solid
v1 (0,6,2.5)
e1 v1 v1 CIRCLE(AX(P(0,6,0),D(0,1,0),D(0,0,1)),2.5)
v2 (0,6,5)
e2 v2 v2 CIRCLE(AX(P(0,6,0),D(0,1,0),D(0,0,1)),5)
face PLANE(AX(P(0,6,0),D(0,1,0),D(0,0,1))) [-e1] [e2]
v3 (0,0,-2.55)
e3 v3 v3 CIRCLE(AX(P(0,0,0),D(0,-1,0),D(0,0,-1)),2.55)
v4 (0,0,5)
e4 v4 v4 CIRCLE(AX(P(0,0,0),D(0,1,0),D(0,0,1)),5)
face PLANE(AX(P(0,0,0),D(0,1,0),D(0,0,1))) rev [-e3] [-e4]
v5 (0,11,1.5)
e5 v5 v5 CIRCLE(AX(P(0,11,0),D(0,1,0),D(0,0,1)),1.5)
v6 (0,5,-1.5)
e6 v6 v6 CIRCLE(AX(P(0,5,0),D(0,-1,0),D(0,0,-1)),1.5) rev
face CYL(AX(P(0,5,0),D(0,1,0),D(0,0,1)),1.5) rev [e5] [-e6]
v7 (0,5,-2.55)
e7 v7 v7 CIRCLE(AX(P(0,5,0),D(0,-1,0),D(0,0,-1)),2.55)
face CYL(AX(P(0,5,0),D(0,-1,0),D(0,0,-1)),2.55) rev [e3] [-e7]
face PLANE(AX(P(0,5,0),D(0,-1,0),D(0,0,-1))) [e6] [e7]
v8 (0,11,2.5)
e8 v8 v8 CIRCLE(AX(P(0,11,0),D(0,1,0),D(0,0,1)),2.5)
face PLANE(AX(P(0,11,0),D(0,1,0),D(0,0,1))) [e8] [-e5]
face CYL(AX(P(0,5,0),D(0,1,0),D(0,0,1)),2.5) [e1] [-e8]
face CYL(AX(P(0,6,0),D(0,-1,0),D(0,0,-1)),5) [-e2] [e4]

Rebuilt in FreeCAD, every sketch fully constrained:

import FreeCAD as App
import Part
import Sketcher

V = App.Vector
Q = App.Units.Quantity

doc = App.newDocument("Part")
body = doc.addObject("PartDesign::Body", "Body")

# Sketch on XZ plane
sketch1 = doc.addObject("Sketcher::SketchObject", "Sketch")
body.addObject(sketch1)
sketch1.AttachmentSupport = (doc.XZ_Plane, [""])
sketch1.MapMode = "FlatFace"
sketch1.addGeometry(Part.Circle(V(0, 0, 0), V(0, 0, 1), 5), False)
sketch1.addConstraint(Sketcher.Constraint("Coincident", 0, 3, -1, 1))
sketch1.addConstraint(Sketcher.Constraint("Diameter", 0, Q("10 mm")))
pad1 = doc.addObject("PartDesign::Pad", "Pad")
body.addObject(pad1)
pad1.Profile = sketch1
pad1.Length = 6
pad1.Reversed = True

# Sketch on XZ plane
sketch2 = doc.addObject("Sketcher::SketchObject", "Sketch001")
body.addObject(sketch2)
sketch2.AttachmentSupport = (doc.XZ_Plane, [""])
sketch2.MapMode = "FlatFace"
sketch2.AttachmentOffset = App.Placement(V(0, 0, -6), App.Rotation())
sketch2.addGeometry(Part.Circle(V(0, 0, 0), V(0, 0, 1), 2.5), False)
sketch2.addConstraint(Sketcher.Constraint("Coincident", 0, 3, -1, 1))
sketch2.addConstraint(Sketcher.Constraint("Diameter", 0, Q("5 mm")))
pad2 = doc.addObject("PartDesign::Pad", "Pad001")
body.addObject(pad2)
pad2.Profile = sketch2
pad2.Type = "TwoLengths"
pad2.Length = 5
pad2.Length2 = 1
pad2.Reversed = True

# Sketch on XZ plane
sketch3 = doc.addObject("Sketcher::SketchObject", "Sketch002")
body.addObject(sketch3)
sketch3.AttachmentSupport = (doc.XZ_Plane, [""])
sketch3.MapMode = "FlatFace"
sketch3.AttachmentOffset = App.Placement(V(0, 0, -11), App.Rotation())
sketch3.addGeometry(Part.Circle(V(0, 0, 0), V(0, 0, 1), 1.5), False)
sketch3.addConstraint(Sketcher.Constraint("Coincident", 0, 3, -1, 1))
sketch3.addConstraint(Sketcher.Constraint("Diameter", 0, Q("3 mm")))
pocket1 = doc.addObject("PartDesign::Pocket", "Pocket")
body.addObject(pocket1)
pocket1.Profile = sketch3
pocket1.Length = 6
pocket1.Reversed = True

# Sketch on XZ plane
sketch4 = doc.addObject("Sketcher::SketchObject", "Sketch003")
body.addObject(sketch4)
sketch4.AttachmentSupport = (doc.XZ_Plane, [""])
sketch4.MapMode = "FlatFace"
sketch4.addGeometry(Part.Circle(V(0, 0, 0), V(0, 0, 1), 2.5), False)
sketch4.addConstraint(Sketcher.Constraint("Coincident", 0, 3, -1, 1))
sketch4.addConstraint(Sketcher.Constraint("Diameter", 0, Q("5.1 mm")))
pocket2 = doc.addObject("PartDesign::Pocket", "Pocket001")
body.addObject(pocket2)
pocket2.Profile = sketch4
pocket2.Length = 5

doc.recompute()
